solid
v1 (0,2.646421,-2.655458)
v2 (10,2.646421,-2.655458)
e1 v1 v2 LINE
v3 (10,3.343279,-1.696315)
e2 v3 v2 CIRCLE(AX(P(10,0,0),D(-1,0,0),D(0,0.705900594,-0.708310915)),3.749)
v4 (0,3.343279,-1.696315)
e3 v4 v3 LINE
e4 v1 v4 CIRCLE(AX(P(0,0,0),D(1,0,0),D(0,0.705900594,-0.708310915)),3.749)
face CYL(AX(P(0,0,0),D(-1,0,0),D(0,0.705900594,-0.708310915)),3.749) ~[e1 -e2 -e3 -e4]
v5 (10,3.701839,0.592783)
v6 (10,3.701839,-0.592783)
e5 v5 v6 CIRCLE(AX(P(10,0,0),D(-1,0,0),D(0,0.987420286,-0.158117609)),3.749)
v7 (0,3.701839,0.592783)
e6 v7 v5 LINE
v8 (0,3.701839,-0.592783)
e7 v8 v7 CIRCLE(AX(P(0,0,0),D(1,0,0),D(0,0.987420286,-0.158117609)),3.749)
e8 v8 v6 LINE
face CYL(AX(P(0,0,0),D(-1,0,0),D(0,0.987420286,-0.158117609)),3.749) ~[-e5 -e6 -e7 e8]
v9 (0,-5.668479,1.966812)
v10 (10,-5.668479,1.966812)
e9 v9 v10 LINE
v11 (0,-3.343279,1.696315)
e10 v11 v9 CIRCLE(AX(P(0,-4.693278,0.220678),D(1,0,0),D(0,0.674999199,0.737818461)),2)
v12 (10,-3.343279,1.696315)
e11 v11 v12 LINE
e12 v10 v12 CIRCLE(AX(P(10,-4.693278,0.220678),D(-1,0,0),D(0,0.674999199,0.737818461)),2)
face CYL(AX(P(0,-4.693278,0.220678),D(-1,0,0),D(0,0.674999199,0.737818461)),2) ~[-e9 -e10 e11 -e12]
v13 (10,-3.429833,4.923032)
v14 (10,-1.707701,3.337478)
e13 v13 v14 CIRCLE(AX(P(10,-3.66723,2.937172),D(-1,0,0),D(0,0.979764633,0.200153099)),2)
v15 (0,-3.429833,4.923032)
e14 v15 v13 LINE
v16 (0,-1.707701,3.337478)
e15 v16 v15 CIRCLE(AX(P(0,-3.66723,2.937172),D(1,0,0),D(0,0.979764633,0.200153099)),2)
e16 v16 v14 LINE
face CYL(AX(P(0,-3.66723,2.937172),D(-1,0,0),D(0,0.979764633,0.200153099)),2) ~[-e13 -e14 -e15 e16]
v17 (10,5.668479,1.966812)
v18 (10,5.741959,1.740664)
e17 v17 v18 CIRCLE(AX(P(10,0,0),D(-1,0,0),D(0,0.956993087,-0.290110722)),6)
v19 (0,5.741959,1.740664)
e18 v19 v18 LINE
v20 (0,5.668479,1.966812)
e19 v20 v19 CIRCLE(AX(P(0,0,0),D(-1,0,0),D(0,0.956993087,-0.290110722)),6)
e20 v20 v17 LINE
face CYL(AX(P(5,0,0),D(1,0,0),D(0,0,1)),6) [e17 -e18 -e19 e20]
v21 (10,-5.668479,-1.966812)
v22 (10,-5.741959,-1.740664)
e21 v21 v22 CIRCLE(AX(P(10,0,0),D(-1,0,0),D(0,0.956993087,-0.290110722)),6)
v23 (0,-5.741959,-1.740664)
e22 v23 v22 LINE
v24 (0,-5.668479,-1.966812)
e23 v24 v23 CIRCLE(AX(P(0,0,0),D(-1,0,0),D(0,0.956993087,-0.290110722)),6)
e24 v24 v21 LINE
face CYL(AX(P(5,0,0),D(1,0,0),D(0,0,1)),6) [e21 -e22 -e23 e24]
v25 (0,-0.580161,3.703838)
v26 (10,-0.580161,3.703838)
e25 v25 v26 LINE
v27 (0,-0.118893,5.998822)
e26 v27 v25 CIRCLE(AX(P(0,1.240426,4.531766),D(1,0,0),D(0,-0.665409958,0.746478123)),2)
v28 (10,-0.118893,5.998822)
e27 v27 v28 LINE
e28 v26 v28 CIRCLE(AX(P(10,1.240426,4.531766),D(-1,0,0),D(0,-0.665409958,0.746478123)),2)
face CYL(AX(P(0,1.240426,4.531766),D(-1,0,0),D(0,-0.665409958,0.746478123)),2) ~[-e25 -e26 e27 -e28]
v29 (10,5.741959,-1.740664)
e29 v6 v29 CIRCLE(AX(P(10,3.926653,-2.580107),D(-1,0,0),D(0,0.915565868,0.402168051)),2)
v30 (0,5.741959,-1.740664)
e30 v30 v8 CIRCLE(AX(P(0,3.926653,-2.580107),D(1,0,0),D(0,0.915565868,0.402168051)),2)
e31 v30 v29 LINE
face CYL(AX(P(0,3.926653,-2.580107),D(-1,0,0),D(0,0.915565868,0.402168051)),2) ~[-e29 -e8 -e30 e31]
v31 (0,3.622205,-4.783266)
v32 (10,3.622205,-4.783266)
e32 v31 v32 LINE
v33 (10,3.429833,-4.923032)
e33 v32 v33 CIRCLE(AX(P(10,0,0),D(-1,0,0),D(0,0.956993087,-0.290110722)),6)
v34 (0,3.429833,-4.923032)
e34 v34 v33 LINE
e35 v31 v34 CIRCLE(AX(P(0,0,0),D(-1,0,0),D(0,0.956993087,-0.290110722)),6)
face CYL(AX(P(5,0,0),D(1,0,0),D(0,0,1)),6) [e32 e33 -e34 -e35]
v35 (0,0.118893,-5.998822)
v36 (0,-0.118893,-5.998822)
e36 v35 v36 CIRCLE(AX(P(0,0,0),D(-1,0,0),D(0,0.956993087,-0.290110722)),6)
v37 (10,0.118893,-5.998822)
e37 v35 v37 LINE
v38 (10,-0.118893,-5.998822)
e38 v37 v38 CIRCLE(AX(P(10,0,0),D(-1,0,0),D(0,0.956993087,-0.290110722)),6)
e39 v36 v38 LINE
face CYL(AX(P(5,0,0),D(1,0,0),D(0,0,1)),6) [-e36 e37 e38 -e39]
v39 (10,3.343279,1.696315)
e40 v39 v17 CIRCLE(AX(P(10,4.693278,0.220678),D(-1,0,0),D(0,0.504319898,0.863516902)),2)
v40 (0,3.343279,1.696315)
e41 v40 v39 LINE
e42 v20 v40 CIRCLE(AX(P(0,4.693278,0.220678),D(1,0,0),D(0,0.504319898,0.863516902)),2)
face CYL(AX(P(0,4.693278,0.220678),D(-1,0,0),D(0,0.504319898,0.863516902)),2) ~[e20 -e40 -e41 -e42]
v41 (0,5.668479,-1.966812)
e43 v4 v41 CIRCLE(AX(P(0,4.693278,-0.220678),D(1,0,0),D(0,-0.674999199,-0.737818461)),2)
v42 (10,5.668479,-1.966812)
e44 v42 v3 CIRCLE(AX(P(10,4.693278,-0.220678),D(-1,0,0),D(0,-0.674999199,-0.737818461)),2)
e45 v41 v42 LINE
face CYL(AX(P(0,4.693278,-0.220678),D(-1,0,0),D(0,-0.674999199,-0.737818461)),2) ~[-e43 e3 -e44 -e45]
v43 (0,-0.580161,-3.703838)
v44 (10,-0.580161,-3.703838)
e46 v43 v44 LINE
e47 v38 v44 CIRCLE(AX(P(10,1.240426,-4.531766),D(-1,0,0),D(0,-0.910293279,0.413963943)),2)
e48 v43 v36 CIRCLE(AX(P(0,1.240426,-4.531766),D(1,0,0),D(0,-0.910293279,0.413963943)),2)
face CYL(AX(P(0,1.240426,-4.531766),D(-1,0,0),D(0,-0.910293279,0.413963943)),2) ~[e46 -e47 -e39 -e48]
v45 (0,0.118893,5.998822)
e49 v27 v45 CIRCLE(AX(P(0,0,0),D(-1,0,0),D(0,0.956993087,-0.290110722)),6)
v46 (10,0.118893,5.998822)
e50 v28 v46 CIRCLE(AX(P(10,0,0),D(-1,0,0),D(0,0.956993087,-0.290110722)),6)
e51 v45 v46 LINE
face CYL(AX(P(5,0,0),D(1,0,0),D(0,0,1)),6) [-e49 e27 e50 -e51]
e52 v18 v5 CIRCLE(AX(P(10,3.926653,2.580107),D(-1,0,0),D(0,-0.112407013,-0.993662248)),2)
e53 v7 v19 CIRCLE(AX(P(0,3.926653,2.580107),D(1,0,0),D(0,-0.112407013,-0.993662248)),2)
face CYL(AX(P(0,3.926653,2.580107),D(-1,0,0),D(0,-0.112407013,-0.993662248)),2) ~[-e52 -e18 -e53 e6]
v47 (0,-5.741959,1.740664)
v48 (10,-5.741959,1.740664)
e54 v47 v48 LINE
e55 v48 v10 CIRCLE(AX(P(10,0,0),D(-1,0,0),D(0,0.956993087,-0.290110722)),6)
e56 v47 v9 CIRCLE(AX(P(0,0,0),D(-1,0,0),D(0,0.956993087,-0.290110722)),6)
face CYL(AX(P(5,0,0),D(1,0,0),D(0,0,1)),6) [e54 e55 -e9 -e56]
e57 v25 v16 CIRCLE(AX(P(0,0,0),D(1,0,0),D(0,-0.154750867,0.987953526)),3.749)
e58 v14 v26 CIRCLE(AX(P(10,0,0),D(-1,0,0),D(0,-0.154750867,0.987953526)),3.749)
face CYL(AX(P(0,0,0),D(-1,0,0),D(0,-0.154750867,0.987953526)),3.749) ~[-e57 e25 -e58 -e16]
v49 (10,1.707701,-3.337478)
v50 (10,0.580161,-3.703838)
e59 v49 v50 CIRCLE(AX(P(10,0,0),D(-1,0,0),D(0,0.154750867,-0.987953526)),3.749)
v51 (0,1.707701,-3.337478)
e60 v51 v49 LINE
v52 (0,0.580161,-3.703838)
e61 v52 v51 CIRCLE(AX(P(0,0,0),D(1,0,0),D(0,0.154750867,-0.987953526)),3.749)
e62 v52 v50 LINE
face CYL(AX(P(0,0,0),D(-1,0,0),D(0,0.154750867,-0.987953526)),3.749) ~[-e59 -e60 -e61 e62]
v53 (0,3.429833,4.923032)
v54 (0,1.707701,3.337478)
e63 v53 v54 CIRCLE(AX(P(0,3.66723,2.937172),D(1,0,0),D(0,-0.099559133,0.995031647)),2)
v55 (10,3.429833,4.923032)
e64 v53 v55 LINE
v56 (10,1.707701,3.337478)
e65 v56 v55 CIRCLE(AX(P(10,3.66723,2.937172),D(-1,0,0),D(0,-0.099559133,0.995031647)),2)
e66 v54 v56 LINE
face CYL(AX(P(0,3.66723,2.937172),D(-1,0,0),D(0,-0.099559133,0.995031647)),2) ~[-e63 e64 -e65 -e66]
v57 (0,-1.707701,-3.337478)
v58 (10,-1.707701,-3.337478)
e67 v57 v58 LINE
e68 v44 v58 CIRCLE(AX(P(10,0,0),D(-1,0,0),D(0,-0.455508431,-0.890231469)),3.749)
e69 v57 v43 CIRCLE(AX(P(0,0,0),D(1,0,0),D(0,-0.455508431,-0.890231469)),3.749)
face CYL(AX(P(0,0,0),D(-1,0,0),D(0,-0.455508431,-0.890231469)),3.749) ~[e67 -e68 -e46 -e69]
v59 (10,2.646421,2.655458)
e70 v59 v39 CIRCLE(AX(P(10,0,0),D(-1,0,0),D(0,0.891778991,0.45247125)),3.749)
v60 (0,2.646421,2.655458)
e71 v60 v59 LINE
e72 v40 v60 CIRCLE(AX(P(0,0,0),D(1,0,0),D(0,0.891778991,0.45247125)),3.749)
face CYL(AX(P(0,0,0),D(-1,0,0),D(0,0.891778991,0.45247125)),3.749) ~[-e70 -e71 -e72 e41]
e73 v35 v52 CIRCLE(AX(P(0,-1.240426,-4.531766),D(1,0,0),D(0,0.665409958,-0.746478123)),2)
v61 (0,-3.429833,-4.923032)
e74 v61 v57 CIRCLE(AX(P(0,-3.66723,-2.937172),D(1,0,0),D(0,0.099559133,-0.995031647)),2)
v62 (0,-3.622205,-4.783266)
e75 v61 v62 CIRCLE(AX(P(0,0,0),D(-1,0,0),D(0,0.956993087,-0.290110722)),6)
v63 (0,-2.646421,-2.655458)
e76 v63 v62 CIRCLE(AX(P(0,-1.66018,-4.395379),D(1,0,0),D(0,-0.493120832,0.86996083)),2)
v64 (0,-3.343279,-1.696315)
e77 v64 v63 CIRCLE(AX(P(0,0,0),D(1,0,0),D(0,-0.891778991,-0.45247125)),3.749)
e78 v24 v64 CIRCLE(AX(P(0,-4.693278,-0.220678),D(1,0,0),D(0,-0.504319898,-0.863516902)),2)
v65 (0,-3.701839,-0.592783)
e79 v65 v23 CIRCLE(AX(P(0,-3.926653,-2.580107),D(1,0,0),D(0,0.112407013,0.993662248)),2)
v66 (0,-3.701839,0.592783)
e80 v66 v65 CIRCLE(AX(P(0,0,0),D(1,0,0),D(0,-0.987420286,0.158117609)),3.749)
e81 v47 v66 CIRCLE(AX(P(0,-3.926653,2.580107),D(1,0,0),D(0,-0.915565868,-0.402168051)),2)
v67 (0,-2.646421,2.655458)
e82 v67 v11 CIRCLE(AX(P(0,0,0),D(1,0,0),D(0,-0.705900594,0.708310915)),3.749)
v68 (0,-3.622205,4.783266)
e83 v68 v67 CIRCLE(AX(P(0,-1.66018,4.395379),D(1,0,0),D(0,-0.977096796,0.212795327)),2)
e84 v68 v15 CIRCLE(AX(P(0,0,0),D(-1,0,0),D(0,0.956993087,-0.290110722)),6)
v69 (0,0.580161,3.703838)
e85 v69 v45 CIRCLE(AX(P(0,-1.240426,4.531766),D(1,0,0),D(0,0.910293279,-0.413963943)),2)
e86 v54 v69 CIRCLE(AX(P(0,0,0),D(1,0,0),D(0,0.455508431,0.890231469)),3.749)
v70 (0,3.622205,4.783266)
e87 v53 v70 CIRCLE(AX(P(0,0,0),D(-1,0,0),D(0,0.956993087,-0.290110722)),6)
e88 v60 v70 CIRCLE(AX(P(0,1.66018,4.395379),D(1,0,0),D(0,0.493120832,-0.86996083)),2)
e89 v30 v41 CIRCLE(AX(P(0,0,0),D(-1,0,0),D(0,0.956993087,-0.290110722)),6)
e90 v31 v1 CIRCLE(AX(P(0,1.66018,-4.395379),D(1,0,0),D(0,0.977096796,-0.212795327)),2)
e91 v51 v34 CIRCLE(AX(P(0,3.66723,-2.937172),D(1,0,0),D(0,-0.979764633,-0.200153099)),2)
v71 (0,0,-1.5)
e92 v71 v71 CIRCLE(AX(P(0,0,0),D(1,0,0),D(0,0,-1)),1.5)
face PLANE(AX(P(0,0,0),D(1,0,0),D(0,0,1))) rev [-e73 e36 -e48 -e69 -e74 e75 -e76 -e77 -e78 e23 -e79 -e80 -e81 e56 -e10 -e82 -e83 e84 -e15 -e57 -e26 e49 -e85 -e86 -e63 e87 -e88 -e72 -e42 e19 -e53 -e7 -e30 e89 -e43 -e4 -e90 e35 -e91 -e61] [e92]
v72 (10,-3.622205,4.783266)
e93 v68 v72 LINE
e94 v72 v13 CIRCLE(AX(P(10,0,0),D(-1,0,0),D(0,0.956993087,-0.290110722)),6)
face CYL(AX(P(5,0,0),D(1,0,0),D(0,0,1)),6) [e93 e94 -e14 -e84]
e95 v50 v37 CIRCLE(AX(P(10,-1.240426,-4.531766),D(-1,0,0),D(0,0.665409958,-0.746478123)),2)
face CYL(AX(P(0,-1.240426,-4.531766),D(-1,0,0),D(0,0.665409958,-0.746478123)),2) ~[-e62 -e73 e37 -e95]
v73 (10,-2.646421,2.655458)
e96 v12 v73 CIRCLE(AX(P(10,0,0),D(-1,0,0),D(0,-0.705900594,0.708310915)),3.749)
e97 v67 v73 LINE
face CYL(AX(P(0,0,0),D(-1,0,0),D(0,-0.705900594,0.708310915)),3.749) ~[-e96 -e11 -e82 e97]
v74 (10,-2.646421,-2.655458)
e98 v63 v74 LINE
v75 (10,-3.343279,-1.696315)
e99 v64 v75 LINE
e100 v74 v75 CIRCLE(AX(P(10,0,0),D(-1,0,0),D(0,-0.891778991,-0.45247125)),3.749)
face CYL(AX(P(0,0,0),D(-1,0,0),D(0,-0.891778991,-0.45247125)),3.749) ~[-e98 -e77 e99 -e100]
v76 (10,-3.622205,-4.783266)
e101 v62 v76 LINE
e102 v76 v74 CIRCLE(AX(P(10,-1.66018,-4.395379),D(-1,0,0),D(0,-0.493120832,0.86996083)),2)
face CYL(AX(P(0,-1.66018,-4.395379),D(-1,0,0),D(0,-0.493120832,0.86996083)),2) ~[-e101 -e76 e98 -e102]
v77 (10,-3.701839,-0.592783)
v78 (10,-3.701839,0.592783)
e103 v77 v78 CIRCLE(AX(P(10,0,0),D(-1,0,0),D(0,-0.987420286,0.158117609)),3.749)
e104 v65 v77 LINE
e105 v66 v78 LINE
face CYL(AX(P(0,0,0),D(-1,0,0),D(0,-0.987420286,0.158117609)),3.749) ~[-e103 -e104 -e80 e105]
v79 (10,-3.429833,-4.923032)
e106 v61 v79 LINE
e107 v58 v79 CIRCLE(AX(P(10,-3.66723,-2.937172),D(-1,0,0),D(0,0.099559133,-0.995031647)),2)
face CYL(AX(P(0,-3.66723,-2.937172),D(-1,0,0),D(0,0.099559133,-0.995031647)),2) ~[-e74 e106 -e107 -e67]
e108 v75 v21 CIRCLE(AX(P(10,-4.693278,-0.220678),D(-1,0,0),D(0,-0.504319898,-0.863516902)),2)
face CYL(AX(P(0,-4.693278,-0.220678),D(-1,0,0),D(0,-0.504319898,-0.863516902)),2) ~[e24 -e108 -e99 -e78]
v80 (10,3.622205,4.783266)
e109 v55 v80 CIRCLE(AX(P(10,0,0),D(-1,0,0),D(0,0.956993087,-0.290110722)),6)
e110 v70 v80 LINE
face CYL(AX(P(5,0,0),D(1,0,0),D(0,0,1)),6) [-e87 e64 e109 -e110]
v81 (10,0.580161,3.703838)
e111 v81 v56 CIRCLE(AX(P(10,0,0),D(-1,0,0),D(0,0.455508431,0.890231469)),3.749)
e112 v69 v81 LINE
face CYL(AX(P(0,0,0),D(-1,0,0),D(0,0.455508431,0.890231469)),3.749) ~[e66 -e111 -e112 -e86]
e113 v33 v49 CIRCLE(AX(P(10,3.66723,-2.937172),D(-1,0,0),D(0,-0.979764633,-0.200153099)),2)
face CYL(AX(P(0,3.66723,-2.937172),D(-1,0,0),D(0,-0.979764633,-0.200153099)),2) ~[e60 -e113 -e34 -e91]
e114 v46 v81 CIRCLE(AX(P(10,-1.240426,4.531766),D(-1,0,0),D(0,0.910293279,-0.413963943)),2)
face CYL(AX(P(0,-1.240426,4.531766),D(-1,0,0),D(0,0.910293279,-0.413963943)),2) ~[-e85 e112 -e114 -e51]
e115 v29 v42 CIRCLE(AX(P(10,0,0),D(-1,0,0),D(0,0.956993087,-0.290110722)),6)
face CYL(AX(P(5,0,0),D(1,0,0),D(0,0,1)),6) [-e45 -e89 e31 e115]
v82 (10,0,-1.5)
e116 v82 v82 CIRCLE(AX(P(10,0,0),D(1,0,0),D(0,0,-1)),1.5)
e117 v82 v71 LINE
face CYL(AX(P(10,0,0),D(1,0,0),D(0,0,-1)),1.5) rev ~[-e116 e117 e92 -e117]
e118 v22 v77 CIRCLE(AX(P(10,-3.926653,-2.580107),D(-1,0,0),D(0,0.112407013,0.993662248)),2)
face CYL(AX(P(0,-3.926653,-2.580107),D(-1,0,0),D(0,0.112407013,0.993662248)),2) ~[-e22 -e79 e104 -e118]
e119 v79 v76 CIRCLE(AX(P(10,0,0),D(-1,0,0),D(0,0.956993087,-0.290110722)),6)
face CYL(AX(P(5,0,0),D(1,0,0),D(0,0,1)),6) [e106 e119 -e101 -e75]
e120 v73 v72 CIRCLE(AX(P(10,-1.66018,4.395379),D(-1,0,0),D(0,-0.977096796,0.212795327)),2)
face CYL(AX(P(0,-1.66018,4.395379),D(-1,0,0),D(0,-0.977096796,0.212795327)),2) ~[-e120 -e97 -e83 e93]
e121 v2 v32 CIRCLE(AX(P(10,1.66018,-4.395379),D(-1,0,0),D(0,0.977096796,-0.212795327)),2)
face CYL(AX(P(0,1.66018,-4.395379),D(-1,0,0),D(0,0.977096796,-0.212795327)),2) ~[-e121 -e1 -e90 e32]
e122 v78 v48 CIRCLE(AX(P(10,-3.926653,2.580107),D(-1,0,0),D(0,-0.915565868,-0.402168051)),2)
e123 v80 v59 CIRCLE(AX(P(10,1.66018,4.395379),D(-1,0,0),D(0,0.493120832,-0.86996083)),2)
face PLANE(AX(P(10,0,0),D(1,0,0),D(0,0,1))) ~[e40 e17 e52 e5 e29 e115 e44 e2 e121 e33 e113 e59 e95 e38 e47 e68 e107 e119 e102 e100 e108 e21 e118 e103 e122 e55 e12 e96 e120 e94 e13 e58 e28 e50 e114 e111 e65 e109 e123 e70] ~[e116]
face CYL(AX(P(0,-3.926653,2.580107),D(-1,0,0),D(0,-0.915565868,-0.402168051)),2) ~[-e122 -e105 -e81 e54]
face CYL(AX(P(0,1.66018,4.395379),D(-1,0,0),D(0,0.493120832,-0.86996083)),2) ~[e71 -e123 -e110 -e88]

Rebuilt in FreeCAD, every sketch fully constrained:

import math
import FreeCAD as App
import Part
import Sketcher
Q = App.Units.Quantity

doc = App.newDocument("Part")
params = doc.addObject("Spreadsheet::Sheet", "Params")
for row, (alias, value) in enumerate([
    ("sketch1_width", "10 mm"),
    ("sketch1_height", "6 mm"),
    ("revolution_angle", "360 deg"),
    ("sketch2_radius", "2 mm"),
    ("sketch3_diameter", "0.8 mm"),
    ("pocket2_length", "100.000102 mm"),
    ("sketch4_diameter", "3 mm"),
], start=1):
    params.set(f"A{row}", alias)
    params.set(f"B{row}", "=" + value)
    params.setAlias(f"B{row}", alias)

body = doc.addObject("PartDesign::Body", "Body")

# Sketch on XZ plane
sketch1 = doc.addObject("Sketcher::SketchObject", "Sketch")
body.addObject(sketch1)
sketch1.AttachmentSupport = (doc.XZ_Plane, [""])
sketch1.MapMode = "FlatFace"
sketch1.addGeometry(Part.LineSegment(App.Vector(0, -6, 0), App.Vector(0, 0, 0)), False)
sketch1.addGeometry(Part.LineSegment(App.Vector(0, 0, 0), App.Vector(10, 0, 0)), False)
sketch1.addGeometry(Part.LineSegment(App.Vector(10, 0, 0), App.Vector(10, -6, 0)), False)
sketch1.addGeometry(Part.LineSegment(App.Vector(10, -6, 0), App.Vector(0, -6, 0)), False)
sketch1.addConstraint(Sketcher.Constraint("Coincident", 0, 2, 1, 1))
sketch1.addConstraint(Sketcher.Constraint("Coincident", 1, 2, 2, 1))
sketch1.addConstraint(Sketcher.Constraint("Coincident", 2, 2, 3, 1))
sketch1.addConstraint(Sketcher.Constraint("Coincident", 3, 2, 0, 1))
sketch1.addConstraint(Sketcher.Constraint("Vertical", 0))
sketch1.addConstraint(Sketcher.Constraint("Horizontal", 1))
sketch1.addConstraint(Sketcher.Constraint("Vertical", 2))
sketch1.addConstraint(Sketcher.Constraint("Horizontal", 3))
sketch1.addConstraint(Sketcher.Constraint("Coincident", 0, 2, -1, 1))
sketch1.addConstraint(Sketcher.Constraint("DistanceX", 1, 1, 1, 2, Q("10 mm")))
sketch1.addConstraint(Sketcher.Constraint("DistanceY", 0, 1, 0, 2, Q("6 mm")))
sketch1.setExpression("Constraints[9]", "Params.sketch1_width")
sketch1.setExpression("Constraints[10]", "Params.sketch1_height")
revolution = doc.addObject("PartDesign::Revolution", "Revolution")
body.addObject(revolution)
revolution.Profile = sketch1
revolution.ReferenceAxis = (sketch1, ["H_Axis"])
revolution.setExpression("Angle", "Params.revolution_angle")

# Sketch on YZ plane
sketch2 = doc.addObject("Sketcher::SketchObject", "Sketch001")
body.addObject(sketch2)
sketch2.AttachmentSupport = (doc.YZ_Plane, [""])
sketch2.MapMode = "FlatFace"
sketch2.addGeometry(Part.ArcOfCircle(Part.Circle(App.Vector(0, 0, 0), App.Vector(0, 0, 1), 3.749), math.radians(-9.097652), math.radians(9.097652)), False)
sketch2.addGeometry(Part.ArcOfCircle(Part.Circle(App.Vector(3.926653, -2.580107, 0), App.Vector(0, 0, 1), 2), math.radians(23.713784), math.radians(96.454088)), False)
sketch2.addGeometry(Part.ArcOfCircle(Part.Circle(App.Vector(0, 0, 0), App.Vector(0, 0, 1), 6.0254), math.radians(-17.140404), math.radians(17.140404)), False)
sketch2.addGeometry(Part.ArcOfCircle(Part.Circle(App.Vector(3.926653, 2.580107, 0), App.Vector(0, 0, 1), 2), math.radians(-96.454088), math.radians(-23.713784)), False)
sketch2.addConstraint(Sketcher.Constraint("Coincident", 0, 1, 1, 2))
sketch2.addConstraint(Sketcher.Constraint("Coincident", 1, 1, 2, 1))
sketch2.addConstraint(Sketcher.Constraint("Coincident", 2, 2, 3, 2))
sketch2.addConstraint(Sketcher.Constraint("Coincident", 3, 1, 0, 2))
sketch2.addConstraint(Sketcher.Constraint("Coincident", 0, 3, -1, 1))
sketch2.addConstraint(Sketcher.Constraint("Coincident", 2, 3, -1, 1))
sketch2.addConstraint(Sketcher.Constraint("Equal", 1, 3))
sketch2.addConstraint(Sketcher.Constraint("Symmetric", 1, 3, 3, 3, -1))
sketch2.addConstraint(Sketcher.Constraint("Radius", 1, Q("2 mm")))
sketch2.addConstraint(Sketcher.Constraint("Radius", 0, Q("3.749 mm")))
sketch2.addConstraint(Sketcher.Constraint("Radius", 2, Q("6.0254 mm")))
sketch2.addConstraint(Sketcher.Constraint("DistanceX", -1, 1, 0, 1, Q("3.701839 mm")))
sketch2.addConstraint(Sketcher.Constraint("DistanceY", 1, 1, -1, 1, Q("1.775771 mm")))
sketch2.setExpression("Constraints[8]", "Params.sketch2_radius")
pocket1 = doc.addObject("PartDesign::Pocket", "Pocket")
body.addObject(pocket1)
pocket1.Profile = sketch2
pocket1.Type = "ThroughAll"
pocket1.Reversed = True
doc.recompute()

polarpattern = doc.addObject("PartDesign::PolarPattern", "PolarPattern")
body.addObject(polarpattern)
polarpattern.Originals = [pocket1]
polarpattern.Axis = (doc.X_Axis, [""])
polarpattern.Angle = 360
polarpattern.Occurrences = 10
body.Tip = polarpattern

# Sketch on YZ plane
sketch3 = doc.addObject("Sketcher::SketchObject", "Sketch002")
body.addObject(sketch3)
sketch3.AttachmentSupport = (doc.YZ_Plane, [""])
sketch3.MapMode = "FlatFace"
sketch3.addGeometry(Part.Circle(App.Vector(0, 0, 0), App.Vector(0, 0, 1), 0.4), False)
sketch3.addConstraint(Sketcher.Constraint("Coincident", 0, 3, -1, 1))
sketch3.addConstraint(Sketcher.Constraint("Diameter", 0, Q("0.8 mm")))
sketch3.setExpression("Constraints[1]", "Params.sketch3_diameter")
pocket2 = doc.addObject("PartDesign::Pocket", "Pocket001")
body.addObject(pocket2)
pocket2.Profile = sketch3
pocket2.setExpression("Length", "Params.pocket2_length")
pocket2.Midplane = True

# Sketch on YZ plane
sketch4 = doc.addObject("Sketcher::SketchObject", "Sketch003")
body.addObject(sketch4)
sketch4.AttachmentSupport = (doc.YZ_Plane, [""])
sketch4.MapMode = "FlatFace"
sketch4.AttachmentOffset = App.Placement(App.Vector(0, 0, 10), App.Rotation())
sketch4.addGeometry(Part.Circle(App.Vector(0, 0, 0), App.Vector(0, 0, 1), 1.5), False)
sketch4.addConstraint(Sketcher.Constraint("Coincident", 0, 3, -1, 1))
sketch4.addConstraint(Sketcher.Constraint("Diameter", 0, Q("3 mm")))
sketch4.setExpression("Constraints[1]", "Params.sketch4_diameter")
pocket3 = doc.addObject("PartDesign::Pocket", "Pocket002")
body.addObject(pocket3)
pocket3.Profile = sketch4
pocket3.Type = "ThroughAll"

doc.recompute()
